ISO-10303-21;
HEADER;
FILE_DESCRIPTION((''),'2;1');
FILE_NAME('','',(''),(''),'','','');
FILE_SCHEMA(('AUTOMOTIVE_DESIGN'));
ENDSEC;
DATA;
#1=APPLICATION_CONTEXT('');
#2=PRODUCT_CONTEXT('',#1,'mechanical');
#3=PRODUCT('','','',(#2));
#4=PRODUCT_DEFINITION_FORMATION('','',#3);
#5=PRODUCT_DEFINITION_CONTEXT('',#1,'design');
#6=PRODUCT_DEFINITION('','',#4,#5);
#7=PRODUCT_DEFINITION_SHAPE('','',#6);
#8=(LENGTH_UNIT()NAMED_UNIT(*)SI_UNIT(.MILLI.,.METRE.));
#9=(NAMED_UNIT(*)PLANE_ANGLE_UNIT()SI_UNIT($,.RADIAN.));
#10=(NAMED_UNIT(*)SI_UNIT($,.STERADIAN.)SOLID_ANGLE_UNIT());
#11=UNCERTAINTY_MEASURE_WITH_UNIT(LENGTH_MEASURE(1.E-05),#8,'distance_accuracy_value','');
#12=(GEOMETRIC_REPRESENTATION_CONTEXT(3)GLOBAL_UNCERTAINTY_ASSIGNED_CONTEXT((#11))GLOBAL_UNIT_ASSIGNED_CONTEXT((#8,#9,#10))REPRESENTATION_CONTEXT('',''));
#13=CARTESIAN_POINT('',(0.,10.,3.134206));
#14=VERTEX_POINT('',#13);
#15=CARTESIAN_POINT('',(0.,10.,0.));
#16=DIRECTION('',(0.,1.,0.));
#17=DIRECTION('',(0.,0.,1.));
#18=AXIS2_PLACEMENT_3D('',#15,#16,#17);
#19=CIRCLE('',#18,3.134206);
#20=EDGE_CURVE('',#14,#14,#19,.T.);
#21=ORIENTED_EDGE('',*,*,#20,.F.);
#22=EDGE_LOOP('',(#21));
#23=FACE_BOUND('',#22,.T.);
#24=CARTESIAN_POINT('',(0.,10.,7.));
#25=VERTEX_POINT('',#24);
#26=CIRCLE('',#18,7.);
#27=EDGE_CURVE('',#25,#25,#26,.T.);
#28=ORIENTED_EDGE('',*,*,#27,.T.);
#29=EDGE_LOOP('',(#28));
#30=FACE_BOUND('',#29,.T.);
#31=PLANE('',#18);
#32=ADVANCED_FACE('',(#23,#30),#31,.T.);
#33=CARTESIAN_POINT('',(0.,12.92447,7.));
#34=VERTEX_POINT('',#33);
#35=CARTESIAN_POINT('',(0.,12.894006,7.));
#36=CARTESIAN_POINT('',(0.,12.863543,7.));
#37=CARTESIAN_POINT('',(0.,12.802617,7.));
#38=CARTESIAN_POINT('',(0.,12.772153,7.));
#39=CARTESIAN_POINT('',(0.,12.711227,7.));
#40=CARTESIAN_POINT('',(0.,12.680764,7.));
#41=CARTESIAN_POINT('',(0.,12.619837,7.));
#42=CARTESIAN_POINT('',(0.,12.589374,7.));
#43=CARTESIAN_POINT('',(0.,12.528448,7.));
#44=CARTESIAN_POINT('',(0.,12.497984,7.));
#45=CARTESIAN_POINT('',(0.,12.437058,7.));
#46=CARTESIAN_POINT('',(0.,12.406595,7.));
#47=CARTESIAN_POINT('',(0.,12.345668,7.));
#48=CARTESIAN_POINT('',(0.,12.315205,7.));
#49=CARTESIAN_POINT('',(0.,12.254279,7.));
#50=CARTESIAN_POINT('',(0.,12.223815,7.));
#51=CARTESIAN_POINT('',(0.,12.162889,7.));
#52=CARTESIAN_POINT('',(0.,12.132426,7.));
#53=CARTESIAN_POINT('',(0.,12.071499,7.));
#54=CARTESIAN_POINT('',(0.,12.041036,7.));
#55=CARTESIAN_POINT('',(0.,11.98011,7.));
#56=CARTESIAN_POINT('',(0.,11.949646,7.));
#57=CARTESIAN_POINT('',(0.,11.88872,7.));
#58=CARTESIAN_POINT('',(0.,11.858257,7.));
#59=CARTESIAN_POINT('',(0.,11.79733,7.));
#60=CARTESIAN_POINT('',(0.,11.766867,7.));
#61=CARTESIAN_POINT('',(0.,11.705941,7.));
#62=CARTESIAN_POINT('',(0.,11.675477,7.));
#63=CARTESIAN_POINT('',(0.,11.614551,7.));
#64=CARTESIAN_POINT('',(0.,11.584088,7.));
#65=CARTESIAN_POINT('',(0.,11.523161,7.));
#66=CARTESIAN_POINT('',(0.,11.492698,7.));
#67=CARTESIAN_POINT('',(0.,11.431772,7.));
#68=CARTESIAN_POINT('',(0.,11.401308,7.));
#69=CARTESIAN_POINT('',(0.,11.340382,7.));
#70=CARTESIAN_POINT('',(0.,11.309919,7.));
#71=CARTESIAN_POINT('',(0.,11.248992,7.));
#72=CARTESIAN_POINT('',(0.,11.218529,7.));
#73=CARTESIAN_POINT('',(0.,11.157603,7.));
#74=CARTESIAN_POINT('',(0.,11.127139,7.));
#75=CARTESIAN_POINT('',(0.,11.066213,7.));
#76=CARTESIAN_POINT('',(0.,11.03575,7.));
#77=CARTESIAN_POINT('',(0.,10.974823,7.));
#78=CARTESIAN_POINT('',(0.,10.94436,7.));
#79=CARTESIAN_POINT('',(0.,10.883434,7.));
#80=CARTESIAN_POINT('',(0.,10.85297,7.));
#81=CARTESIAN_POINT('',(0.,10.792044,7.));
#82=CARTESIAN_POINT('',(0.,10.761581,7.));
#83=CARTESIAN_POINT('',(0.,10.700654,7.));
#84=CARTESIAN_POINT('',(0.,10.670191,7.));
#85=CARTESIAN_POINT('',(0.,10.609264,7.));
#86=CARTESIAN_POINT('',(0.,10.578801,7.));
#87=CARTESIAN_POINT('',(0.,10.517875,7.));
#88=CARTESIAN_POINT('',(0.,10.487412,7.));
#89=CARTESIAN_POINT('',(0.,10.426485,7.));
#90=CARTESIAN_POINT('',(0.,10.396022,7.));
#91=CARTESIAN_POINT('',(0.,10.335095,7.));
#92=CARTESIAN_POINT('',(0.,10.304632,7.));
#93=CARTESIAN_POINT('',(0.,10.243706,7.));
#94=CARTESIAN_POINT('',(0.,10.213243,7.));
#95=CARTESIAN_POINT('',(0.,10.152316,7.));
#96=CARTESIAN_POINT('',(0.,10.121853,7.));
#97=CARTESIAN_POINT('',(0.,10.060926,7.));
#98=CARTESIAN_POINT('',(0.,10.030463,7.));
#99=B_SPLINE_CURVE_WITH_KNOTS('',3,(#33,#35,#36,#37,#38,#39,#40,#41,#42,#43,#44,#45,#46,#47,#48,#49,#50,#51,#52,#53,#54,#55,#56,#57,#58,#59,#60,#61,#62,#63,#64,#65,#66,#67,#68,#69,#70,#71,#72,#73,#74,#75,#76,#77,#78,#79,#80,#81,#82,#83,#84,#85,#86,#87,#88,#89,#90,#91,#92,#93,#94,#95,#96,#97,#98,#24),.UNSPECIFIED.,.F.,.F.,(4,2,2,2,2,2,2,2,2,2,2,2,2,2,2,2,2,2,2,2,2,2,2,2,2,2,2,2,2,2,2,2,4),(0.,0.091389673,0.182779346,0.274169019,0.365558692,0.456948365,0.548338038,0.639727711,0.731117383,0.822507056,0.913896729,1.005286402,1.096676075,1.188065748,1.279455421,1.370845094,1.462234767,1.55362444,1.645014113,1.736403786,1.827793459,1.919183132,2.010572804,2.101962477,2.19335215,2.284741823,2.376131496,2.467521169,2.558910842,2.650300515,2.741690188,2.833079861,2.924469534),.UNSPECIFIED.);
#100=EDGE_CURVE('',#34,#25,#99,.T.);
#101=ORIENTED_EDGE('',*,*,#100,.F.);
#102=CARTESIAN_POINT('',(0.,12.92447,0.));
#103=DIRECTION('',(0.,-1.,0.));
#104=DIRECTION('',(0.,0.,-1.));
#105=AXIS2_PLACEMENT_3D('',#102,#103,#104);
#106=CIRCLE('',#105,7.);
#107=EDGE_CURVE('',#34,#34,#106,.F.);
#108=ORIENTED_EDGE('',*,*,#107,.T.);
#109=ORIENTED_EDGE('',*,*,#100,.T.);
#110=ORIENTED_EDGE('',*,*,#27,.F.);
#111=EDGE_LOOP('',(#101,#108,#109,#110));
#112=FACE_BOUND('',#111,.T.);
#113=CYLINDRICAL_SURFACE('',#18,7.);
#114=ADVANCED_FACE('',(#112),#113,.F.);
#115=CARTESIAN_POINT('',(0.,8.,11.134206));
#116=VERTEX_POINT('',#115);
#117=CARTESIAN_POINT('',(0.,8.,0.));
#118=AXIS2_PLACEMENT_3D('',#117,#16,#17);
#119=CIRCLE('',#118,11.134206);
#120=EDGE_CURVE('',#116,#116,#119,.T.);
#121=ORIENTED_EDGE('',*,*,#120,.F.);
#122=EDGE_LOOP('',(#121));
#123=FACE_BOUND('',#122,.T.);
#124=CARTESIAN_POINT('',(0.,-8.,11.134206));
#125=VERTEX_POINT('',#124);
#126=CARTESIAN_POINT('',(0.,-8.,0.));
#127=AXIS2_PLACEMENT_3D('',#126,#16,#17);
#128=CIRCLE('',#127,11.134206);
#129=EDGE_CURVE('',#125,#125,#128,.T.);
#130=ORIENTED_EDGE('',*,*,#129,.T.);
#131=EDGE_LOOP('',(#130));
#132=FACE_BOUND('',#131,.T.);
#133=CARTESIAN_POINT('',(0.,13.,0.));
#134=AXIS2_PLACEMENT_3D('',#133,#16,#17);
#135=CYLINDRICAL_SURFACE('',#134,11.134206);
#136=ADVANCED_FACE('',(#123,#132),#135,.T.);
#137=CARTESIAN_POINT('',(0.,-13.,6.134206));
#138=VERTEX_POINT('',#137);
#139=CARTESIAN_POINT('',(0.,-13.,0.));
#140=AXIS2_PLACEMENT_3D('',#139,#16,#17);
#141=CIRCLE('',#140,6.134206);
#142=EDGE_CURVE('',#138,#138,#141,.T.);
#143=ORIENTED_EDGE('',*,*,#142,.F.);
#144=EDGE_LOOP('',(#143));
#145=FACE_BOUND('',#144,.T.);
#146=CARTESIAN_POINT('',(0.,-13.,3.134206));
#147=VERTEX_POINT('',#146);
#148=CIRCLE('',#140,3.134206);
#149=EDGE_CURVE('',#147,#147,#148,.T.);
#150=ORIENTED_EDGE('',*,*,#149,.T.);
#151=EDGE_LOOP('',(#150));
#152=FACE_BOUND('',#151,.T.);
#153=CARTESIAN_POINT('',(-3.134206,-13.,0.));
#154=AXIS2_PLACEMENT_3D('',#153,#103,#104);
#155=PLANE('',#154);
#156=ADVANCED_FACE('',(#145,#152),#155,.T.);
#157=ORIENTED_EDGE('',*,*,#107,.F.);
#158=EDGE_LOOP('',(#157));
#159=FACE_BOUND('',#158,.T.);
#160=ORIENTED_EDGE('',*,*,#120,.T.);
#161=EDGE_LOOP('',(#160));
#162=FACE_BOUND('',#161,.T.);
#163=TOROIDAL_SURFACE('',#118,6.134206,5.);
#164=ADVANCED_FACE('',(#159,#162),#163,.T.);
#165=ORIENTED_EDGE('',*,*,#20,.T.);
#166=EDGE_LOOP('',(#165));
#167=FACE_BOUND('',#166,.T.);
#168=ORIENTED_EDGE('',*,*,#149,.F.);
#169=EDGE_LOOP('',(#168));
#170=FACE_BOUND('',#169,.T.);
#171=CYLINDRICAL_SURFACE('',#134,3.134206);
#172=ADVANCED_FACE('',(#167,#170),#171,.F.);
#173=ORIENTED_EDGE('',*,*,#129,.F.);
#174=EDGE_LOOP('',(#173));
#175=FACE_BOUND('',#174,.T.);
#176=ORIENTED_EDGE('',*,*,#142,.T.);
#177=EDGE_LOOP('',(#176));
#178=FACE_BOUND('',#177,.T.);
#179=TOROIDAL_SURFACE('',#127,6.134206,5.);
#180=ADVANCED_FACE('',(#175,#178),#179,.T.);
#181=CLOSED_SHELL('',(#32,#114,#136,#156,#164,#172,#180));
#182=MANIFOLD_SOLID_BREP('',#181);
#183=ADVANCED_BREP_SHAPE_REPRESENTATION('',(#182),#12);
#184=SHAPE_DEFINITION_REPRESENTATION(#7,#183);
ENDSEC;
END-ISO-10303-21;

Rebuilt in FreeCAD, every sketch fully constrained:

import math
import FreeCAD as App
import Part
import Sketcher

V = App.Vector

doc = App.newDocument("Part")
body = doc.addObject("PartDesign::Body", "Body")

sketch1 = doc.addObject("Sketcher::SketchObject", "Sketch")
body.addObject(sketch1)
sketch1.AttachmentSupport = (doc.XY_Plane, [""])
sketch1.MapMode = "FlatFace"
sketch1.addGeometry([
    Part.LineSegment(V(-6.1, -13, 0), V(-3.1, -13, 0)),
    Part.LineSegment(V(-3.1, -13, 0), V(-3.1, 13, 0)),
    Part.LineSegment(V(-3.1, 13, 0), V(-6.1, 13, 0)),
    Part.ArcOfCircle(Part.Circle(V(-6.1, 8, 0), V(0, 0, 1), 5), math.radians(90), math.radians(180)),
    Part.LineSegment(V(-11.1, 8, 0), V(-11.1, -8, 0)),
    Part.ArcOfCircle(Part.Circle(V(-6.1, -8, 0), V(0, 0, 1), 5), math.radians(180), math.radians(270)),
], False)
sketch1.addConstraint([
    Sketcher.Constraint("Coincident", 0, 2, 1, 1),
    Sketcher.Constraint("Coincident", 1, 2, 2, 1),
    Sketcher.Constraint("Tangent", 2, 2, 3, 1),
    Sketcher.Constraint("Tangent", 3, 2, 4, 1),
    Sketcher.Constraint("Tangent", 4, 2, 5, 1),
    Sketcher.Constraint("Tangent", 5, 2, 0, 1),
    Sketcher.Constraint("Horizontal", 0),
    Sketcher.Constraint("Vertical", 1),
    Sketcher.Constraint("Horizontal", 2),
    Sketcher.Constraint("Vertical", 4),
    Sketcher.Constraint("Equal", 3, 5),
    Sketcher.Constraint("Radius", 3, 5.0),
    Sketcher.Constraint("DistanceX", 0, 1, 0, 2, 3.0),
    Sketcher.Constraint("DistanceY", 1, 1, 1, 2, 26.0),
    Sketcher.Constraint("DistanceY", -1, 1, 3, 3, 8.0),
    Sketcher.Constraint("DistanceX", 3, 3, -1, 1, 6.134206),
])
revolution = doc.addObject("PartDesign::Revolution", "Revolution")
body.addObject(revolution)
revolution.Profile = sketch1
revolution.ReferenceAxis = (sketch1, ["V_Axis"])
revolution.Angle = 360

sketch2 = doc.addObject("Sketcher::SketchObject", "Sketch001")
body.addObject(sketch2)
sketch2.AttachmentSupport = (doc.XZ_Plane, [""])
sketch2.MapMode = "FlatFace"
sketch2.AttachmentOffset = App.Placement(V(0, 0, -10), App.Rotation())
sketch2.addGeometry([
    Part.Circle(V(0, 0, 0), V(0, 0, 1), 7),
    Part.Circle(V(0, 0, 0), V(0, 0, 1), 3.1),
], False)
sketch2.addConstraint([
    Sketcher.Constraint("Coincident", 0, 3, -1, 1),
    Sketcher.Constraint("Coincident", 1, 3, -1, 1),
    Sketcher.Constraint("Diameter", 0, 14.0),
    Sketcher.Constraint("Diameter", 1, 6.268411),
])
pocket1 = doc.addObject("PartDesign::Pocket", "Pocket")
body.addObject(pocket1)
pocket1.Profile = sketch2
pocket1.Length = 13

doc.recompute()
